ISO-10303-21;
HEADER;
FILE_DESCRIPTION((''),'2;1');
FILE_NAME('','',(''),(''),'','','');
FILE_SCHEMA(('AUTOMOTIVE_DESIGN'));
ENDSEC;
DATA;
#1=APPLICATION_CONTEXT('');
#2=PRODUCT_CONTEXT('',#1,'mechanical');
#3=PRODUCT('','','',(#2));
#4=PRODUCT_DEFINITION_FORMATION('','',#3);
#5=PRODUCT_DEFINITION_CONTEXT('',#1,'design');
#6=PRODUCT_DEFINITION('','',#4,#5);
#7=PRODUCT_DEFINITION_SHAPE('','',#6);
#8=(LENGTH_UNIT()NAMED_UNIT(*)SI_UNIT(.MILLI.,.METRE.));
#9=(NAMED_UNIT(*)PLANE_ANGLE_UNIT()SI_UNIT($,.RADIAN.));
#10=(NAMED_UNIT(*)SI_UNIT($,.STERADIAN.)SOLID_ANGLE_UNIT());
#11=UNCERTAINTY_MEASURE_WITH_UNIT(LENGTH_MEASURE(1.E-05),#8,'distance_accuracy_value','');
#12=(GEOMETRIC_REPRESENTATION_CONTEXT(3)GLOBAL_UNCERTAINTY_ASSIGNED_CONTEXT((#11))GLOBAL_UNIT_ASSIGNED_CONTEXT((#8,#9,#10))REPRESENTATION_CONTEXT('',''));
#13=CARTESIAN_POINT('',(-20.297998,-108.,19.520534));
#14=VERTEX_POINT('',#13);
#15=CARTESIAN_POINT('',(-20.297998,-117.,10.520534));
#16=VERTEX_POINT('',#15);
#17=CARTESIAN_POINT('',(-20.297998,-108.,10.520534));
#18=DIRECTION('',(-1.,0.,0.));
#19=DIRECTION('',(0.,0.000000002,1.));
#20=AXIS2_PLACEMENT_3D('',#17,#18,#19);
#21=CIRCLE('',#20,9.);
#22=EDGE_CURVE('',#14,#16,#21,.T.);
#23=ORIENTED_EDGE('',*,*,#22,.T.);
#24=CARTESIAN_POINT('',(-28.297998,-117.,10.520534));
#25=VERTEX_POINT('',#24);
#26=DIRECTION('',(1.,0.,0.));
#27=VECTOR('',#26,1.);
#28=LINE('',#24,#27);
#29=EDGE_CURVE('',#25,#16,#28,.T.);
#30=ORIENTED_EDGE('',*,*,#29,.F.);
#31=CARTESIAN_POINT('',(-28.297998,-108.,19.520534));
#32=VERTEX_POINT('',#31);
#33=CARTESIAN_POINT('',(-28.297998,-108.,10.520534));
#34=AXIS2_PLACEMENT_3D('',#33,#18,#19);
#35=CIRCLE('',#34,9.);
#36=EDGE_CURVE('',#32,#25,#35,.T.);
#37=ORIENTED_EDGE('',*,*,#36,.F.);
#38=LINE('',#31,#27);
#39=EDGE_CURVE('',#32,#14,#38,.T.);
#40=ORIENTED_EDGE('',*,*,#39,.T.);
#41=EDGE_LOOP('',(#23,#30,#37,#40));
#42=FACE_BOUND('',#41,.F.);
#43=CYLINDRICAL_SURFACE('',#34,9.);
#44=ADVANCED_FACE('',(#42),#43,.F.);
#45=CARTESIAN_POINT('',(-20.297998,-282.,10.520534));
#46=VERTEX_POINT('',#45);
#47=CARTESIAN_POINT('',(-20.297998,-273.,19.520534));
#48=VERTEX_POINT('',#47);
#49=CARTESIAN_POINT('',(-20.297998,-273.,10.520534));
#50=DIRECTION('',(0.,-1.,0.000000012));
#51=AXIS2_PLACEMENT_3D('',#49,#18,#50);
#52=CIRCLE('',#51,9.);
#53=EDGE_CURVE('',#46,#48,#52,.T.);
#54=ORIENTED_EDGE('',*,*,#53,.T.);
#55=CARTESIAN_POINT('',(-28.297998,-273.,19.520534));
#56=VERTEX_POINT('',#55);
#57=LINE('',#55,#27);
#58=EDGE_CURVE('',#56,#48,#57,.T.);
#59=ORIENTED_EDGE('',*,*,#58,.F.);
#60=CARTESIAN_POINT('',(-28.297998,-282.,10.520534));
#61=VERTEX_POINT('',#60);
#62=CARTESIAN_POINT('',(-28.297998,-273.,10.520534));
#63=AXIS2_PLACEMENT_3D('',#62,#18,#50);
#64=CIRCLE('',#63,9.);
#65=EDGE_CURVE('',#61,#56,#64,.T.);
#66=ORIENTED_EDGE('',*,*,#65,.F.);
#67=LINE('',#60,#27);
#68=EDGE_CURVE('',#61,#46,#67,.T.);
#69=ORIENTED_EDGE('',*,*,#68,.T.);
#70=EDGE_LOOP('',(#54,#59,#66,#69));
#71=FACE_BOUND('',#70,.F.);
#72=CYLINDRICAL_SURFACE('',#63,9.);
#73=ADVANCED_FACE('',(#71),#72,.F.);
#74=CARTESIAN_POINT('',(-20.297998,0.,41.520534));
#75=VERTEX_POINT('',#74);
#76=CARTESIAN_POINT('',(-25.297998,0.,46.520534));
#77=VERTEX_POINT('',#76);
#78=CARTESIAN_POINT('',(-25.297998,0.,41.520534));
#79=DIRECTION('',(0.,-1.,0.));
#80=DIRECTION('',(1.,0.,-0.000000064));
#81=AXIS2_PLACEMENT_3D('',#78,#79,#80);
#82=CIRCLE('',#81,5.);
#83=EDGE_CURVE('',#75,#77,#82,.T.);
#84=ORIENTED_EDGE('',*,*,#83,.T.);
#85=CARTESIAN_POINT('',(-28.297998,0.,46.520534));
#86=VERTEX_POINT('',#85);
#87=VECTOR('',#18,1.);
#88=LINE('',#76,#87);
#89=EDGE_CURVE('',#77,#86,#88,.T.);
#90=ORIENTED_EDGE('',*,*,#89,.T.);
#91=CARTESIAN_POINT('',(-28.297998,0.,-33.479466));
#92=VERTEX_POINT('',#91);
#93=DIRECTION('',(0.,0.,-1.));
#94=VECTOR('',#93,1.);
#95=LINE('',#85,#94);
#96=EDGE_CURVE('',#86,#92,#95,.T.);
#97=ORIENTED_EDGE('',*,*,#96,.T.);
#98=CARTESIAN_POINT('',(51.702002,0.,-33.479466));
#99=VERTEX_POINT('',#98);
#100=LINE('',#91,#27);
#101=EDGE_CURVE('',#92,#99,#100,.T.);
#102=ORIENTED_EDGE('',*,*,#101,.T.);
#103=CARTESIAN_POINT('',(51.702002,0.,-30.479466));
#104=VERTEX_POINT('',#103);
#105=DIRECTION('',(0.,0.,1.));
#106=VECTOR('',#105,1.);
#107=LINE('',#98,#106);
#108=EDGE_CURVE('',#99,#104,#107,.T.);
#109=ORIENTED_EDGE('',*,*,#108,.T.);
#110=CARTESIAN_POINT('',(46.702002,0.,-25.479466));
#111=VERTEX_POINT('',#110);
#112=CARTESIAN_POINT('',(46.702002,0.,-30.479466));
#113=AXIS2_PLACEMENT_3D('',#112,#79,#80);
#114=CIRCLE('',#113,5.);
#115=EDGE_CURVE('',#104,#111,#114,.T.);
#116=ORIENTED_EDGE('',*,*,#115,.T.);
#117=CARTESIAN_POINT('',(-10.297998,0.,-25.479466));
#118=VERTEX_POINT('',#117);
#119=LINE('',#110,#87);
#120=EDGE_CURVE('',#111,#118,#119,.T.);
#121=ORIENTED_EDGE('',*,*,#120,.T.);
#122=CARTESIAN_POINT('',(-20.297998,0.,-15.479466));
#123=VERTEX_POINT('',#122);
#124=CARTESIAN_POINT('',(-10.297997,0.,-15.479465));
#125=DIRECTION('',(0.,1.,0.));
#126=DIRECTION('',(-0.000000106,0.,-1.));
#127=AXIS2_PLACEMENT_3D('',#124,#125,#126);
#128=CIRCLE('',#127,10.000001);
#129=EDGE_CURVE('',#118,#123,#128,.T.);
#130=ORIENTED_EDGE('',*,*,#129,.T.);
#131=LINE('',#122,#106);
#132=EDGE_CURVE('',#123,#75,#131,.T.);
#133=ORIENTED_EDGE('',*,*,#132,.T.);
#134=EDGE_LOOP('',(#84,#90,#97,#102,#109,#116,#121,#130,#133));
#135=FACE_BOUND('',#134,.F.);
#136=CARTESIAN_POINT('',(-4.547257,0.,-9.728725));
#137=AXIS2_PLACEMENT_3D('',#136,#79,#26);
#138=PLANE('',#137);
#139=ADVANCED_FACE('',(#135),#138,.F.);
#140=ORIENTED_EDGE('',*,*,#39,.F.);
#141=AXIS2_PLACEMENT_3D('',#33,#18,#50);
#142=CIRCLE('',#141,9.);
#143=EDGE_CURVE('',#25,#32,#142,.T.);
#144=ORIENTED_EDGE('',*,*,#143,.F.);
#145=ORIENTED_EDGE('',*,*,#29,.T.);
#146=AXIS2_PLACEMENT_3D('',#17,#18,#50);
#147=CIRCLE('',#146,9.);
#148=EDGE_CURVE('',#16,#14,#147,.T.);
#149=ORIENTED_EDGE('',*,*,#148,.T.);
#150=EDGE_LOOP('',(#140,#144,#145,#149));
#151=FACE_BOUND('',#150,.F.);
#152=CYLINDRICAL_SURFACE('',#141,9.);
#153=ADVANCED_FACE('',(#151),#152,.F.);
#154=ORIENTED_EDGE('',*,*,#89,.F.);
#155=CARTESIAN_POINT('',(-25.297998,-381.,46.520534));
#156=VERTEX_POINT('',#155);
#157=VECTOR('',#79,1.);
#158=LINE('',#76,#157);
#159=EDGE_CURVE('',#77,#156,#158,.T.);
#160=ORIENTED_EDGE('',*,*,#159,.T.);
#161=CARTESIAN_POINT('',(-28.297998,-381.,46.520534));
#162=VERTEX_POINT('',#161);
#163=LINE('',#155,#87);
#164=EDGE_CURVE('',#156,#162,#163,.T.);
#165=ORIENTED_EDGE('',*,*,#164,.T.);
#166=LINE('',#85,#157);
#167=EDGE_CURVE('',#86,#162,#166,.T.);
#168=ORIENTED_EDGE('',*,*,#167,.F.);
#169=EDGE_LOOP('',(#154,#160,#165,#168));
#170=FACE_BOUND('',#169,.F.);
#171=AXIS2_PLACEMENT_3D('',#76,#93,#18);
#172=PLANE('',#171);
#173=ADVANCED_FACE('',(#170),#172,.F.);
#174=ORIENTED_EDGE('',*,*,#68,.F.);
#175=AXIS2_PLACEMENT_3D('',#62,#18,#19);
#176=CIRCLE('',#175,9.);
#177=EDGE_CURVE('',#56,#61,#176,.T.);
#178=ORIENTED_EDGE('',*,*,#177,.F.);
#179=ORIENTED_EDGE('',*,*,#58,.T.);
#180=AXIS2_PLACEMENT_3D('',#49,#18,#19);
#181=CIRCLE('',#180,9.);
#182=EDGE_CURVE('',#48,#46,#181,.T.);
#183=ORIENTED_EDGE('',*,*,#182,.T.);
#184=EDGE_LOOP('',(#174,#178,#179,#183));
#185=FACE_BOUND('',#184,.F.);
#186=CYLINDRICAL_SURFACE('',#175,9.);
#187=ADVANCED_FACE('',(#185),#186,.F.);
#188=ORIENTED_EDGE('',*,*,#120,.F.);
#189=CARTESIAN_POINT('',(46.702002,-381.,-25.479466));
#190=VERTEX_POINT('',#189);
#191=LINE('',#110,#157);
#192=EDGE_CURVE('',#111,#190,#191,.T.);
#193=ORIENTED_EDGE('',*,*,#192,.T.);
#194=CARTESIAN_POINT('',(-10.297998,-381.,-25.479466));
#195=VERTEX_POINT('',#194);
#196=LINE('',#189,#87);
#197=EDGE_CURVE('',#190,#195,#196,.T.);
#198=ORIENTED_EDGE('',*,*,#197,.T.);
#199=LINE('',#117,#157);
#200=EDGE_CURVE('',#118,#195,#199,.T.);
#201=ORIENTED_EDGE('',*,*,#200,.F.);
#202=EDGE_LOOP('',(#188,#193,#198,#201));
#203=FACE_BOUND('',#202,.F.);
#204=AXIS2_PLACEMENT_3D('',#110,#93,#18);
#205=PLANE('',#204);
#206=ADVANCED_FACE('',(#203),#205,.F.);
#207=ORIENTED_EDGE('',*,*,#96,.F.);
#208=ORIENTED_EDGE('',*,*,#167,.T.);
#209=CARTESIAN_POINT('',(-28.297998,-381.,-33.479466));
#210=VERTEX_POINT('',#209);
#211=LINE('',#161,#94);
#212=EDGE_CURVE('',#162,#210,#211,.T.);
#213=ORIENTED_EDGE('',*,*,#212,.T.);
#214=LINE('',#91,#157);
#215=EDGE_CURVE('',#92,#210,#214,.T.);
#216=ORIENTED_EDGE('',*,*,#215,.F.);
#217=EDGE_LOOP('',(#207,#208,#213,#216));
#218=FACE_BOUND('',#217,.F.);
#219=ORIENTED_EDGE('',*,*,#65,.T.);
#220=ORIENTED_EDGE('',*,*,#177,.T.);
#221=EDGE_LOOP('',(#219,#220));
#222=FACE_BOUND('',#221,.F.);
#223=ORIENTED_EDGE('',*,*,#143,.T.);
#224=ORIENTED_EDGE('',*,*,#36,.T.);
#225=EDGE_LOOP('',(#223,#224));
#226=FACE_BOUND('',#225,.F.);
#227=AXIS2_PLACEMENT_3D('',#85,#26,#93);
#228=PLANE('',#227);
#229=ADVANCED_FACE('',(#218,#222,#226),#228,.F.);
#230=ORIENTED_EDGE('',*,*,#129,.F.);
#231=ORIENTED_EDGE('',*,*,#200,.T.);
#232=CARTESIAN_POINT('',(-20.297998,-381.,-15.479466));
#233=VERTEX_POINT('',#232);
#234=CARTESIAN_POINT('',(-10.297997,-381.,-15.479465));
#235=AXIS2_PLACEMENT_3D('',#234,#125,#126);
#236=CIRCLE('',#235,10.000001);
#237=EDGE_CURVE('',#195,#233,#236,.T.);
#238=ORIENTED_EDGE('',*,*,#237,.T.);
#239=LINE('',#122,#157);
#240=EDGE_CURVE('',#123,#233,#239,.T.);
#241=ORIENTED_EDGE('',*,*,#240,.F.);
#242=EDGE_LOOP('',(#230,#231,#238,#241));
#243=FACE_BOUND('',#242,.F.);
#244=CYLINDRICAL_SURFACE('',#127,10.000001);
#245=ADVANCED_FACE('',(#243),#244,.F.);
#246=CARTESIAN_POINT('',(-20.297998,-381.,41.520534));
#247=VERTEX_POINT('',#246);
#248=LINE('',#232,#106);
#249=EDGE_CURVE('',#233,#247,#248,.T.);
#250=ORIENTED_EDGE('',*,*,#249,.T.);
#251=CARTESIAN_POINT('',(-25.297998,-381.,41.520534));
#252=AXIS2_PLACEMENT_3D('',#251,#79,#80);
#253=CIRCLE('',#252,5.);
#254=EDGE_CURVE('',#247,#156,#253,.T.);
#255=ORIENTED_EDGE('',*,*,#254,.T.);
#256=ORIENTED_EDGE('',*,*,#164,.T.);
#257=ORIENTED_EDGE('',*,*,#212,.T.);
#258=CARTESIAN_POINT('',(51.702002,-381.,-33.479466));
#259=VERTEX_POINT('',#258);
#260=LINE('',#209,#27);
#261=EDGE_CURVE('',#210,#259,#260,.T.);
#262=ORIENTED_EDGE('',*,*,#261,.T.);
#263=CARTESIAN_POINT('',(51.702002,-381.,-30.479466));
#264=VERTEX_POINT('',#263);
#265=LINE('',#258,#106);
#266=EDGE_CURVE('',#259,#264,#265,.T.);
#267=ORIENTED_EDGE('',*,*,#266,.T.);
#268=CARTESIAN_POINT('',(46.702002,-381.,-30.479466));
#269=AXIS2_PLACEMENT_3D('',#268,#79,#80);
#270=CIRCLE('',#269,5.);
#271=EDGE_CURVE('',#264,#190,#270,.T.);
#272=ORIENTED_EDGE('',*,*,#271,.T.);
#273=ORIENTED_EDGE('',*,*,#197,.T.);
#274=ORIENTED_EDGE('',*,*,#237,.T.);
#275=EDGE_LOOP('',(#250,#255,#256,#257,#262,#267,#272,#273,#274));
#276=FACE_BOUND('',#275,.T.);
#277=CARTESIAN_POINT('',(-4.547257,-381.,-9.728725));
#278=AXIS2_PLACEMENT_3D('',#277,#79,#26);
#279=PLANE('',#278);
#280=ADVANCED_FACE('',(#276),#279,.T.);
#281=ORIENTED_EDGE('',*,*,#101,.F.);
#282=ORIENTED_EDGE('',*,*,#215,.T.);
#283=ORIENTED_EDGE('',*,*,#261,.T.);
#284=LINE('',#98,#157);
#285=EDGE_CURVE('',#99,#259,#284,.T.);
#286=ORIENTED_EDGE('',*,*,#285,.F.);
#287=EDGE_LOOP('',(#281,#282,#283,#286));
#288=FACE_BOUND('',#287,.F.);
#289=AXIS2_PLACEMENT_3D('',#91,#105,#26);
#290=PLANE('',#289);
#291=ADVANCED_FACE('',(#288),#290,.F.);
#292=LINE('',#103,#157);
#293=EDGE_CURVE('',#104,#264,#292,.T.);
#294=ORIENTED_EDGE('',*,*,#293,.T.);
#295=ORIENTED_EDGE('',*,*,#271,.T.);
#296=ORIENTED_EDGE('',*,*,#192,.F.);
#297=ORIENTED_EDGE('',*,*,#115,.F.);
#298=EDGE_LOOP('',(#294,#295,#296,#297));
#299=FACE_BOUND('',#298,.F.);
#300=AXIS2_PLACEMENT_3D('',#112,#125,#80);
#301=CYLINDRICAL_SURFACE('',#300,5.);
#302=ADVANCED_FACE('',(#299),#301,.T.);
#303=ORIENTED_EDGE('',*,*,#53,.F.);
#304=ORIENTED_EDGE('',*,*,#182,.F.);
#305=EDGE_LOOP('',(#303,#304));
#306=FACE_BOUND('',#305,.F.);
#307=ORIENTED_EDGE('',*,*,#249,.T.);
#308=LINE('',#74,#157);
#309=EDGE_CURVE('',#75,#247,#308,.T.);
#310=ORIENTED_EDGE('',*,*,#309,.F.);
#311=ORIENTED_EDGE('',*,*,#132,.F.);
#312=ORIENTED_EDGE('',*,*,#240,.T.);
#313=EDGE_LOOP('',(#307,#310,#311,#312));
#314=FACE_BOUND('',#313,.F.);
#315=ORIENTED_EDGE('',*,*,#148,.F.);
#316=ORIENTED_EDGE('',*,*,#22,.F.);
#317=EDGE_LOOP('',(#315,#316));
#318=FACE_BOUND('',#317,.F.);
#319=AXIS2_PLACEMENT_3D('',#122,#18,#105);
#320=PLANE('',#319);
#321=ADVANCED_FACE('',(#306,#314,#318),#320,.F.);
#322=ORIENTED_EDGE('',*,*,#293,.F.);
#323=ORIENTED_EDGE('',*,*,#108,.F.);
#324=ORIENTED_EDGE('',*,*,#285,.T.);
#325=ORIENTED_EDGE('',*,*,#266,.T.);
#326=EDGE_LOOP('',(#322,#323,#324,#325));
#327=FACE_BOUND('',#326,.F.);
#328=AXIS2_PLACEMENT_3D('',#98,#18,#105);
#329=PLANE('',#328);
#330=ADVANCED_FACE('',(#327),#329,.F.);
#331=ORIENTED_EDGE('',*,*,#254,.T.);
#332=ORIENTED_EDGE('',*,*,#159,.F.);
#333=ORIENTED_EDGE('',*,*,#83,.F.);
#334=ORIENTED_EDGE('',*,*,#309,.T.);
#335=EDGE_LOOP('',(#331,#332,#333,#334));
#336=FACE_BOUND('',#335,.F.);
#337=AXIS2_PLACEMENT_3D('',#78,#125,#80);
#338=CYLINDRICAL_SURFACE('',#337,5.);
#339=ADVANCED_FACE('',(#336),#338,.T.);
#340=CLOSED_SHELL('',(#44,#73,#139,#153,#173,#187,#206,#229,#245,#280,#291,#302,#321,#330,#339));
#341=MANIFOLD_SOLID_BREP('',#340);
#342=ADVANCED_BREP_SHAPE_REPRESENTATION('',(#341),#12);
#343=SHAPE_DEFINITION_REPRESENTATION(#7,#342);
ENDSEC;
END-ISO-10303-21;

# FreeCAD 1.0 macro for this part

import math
import FreeCAD as App
import Part
import Sketcher

doc = App.newDocument("Part")
body = doc.addObject("PartDesign::Body", "Body")

sketch1 = body.newObject("Sketcher::SketchObject", "Sketch")
sketch1.AttachmentSupport = (doc.getObject("XZ_Plane"), [""])
sketch1.MapMode = "FlatFace"
sketch1.addGeometry([
    Part.LineSegment(App.Vector(-25.3, 46.5, 0), App.Vector(-28.3, 46.5, 0)),
    Part.LineSegment(App.Vector(-28.3, 46.5, 0), App.Vector(-28.3, -33.5, 0)),
    Part.LineSegment(App.Vector(-28.3, -33.5, 0), App.Vector(51.7, -33.5, 0)),
    Part.LineSegment(App.Vector(51.7, -33.5, 0), App.Vector(51.7, -30.5, 0)),
    Part.ArcOfCircle(Part.Circle(App.Vector(46.7, -30.5, 0), App.Vector(0, 0, 1), 5), math.radians(0), math.radians(90)),
    Part.LineSegment(App.Vector(46.7, -25.5, 0), App.Vector(-10.3, -25.5, 0)),
    Part.ArcOfCircle(Part.Circle(App.Vector(-10.3, -15.5, 0), App.Vector(0, 0, 1), 10), math.radians(-180), math.radians(-90)),
    Part.LineSegment(App.Vector(-20.3, -15.5, 0), App.Vector(-20.3, 41.5, 0)),
    Part.ArcOfCircle(Part.Circle(App.Vector(-25.3, 41.5, 0), App.Vector(0, 0, 1), 5), math.radians(0), math.radians(90)),
], False)
sketch1.addConstraint([
    Sketcher.Constraint("Coincident", 0, 2, 1, 1),
    Sketcher.Constraint("Coincident", 1, 2, 2, 1),
    Sketcher.Constraint("Coincident", 2, 2, 3, 1),
    Sketcher.Constraint("Tangent", 3, 2, 4, 1),
    Sketcher.Constraint("Tangent", 4, 2, 5, 1),
    Sketcher.Constraint("Tangent", 5, 2, 6, 2),
    Sketcher.Constraint("Tangent", 6, 1, 7, 1),
    Sketcher.Constraint("Tangent", 7, 2, 8, 1),
    Sketcher.Constraint("Tangent", 8, 2, 0, 1),
    Sketcher.Constraint("Horizontal", 0),
    Sketcher.Constraint("Vertical", 1),
    Sketcher.Constraint("Horizontal", 2),
    Sketcher.Constraint("Vertical", 3),
    Sketcher.Constraint("Horizontal", 5),
    Sketcher.Constraint("Vertical", 7),
    Sketcher.Constraint("Equal", 4, 8),
    Sketcher.Constraint("Equal", 2, 1),
    Sketcher.Constraint("Equal", 0, 3),
    Sketcher.Constraint("Radius", 4, 5.0),
    Sketcher.Constraint("Radius", 6, 10.000001),
    Sketcher.Constraint("DistanceX", 0, 2, 0, 1, 3.0),
    Sketcher.Constraint("DistanceX", 2, 1, 2, 2, 80.0),
    Sketcher.Constraint("DistanceX", 0, 2, -1, 1, 28.297998),
    Sketcher.Constraint("DistanceY", 4, 3, -1, 1, 30.479466),
])
pad1 = body.newObject("PartDesign::Pad", "Pad")
pad1.Profile = sketch1
pad1.Length = 381

sketch2 = body.newObject("Sketcher::SketchObject", "Sketch001")
sketch2.AttachmentSupport = (doc.getObject("YZ_Plane"), [""])
sketch2.MapMode = "FlatFace"
sketch2.AttachmentOffset = App.Placement(App.Vector(0, 0, -28.297998), App.Rotation())
sketch2.addGeometry([
    Part.ArcOfCircle(Part.Circle(App.Vector(-108, 11, 0), App.Vector(0, 0, 1), 9), math.radians(90), math.radians(180)),
    Part.ArcOfCircle(Part.Circle(App.Vector(-108, 11, 0), App.Vector(0, 0, 1), 9), math.radians(-180), math.radians(90)),
    Part.ArcOfCircle(Part.Circle(App.Vector(-273, 11, 0), App.Vector(0, 0, 1), 9), math.radians(90), math.radians(180)),
    Part.ArcOfCircle(Part.Circle(App.Vector(-273, 11, 0), App.Vector(0, 0, 1), 9), math.radians(-180), math.radians(90)),
], False)
sketch2.addConstraint([
    Sketcher.Constraint("Tangent", 0, 1, 1, 2),
    Sketcher.Constraint("Coincident", 1, 1, 0, 2),
    Sketcher.Constraint("Tangent", 2, 1, 3, 2),
    Sketcher.Constraint("Coincident", 3, 1, 2, 2),
    Sketcher.Constraint("Equal", 1, 2),
    Sketcher.Constraint("Horizontal", 1, 3, 2, 3),
    Sketcher.Constraint("Horizontal", 3, 3, 1, 1),
    Sketcher.Constraint("Horizontal", 1, 1, 3, 1),
    Sketcher.Constraint("Vertical", 1, 3, 0, 1),
    Sketcher.Constraint("Vertical", 3, 3, 2, 1),
    Sketcher.Constraint("Radius", 0, 9.0),
    Sketcher.Constraint("DistanceX", 0, 3, -1, 1, 108.0),
    Sketcher.Constraint("DistanceX", 2, 3, -1, 1, 273.0),
    Sketcher.Constraint("DistanceY", -1, 1, 0, 3, 10.520534),
])
pocket1 = body.newObject("PartDesign::Pocket", "Pocket")
pocket1.Profile = sketch2
pocket1.Type = "ThroughAll"
pocket1.Reversed = True

doc.recompute()
